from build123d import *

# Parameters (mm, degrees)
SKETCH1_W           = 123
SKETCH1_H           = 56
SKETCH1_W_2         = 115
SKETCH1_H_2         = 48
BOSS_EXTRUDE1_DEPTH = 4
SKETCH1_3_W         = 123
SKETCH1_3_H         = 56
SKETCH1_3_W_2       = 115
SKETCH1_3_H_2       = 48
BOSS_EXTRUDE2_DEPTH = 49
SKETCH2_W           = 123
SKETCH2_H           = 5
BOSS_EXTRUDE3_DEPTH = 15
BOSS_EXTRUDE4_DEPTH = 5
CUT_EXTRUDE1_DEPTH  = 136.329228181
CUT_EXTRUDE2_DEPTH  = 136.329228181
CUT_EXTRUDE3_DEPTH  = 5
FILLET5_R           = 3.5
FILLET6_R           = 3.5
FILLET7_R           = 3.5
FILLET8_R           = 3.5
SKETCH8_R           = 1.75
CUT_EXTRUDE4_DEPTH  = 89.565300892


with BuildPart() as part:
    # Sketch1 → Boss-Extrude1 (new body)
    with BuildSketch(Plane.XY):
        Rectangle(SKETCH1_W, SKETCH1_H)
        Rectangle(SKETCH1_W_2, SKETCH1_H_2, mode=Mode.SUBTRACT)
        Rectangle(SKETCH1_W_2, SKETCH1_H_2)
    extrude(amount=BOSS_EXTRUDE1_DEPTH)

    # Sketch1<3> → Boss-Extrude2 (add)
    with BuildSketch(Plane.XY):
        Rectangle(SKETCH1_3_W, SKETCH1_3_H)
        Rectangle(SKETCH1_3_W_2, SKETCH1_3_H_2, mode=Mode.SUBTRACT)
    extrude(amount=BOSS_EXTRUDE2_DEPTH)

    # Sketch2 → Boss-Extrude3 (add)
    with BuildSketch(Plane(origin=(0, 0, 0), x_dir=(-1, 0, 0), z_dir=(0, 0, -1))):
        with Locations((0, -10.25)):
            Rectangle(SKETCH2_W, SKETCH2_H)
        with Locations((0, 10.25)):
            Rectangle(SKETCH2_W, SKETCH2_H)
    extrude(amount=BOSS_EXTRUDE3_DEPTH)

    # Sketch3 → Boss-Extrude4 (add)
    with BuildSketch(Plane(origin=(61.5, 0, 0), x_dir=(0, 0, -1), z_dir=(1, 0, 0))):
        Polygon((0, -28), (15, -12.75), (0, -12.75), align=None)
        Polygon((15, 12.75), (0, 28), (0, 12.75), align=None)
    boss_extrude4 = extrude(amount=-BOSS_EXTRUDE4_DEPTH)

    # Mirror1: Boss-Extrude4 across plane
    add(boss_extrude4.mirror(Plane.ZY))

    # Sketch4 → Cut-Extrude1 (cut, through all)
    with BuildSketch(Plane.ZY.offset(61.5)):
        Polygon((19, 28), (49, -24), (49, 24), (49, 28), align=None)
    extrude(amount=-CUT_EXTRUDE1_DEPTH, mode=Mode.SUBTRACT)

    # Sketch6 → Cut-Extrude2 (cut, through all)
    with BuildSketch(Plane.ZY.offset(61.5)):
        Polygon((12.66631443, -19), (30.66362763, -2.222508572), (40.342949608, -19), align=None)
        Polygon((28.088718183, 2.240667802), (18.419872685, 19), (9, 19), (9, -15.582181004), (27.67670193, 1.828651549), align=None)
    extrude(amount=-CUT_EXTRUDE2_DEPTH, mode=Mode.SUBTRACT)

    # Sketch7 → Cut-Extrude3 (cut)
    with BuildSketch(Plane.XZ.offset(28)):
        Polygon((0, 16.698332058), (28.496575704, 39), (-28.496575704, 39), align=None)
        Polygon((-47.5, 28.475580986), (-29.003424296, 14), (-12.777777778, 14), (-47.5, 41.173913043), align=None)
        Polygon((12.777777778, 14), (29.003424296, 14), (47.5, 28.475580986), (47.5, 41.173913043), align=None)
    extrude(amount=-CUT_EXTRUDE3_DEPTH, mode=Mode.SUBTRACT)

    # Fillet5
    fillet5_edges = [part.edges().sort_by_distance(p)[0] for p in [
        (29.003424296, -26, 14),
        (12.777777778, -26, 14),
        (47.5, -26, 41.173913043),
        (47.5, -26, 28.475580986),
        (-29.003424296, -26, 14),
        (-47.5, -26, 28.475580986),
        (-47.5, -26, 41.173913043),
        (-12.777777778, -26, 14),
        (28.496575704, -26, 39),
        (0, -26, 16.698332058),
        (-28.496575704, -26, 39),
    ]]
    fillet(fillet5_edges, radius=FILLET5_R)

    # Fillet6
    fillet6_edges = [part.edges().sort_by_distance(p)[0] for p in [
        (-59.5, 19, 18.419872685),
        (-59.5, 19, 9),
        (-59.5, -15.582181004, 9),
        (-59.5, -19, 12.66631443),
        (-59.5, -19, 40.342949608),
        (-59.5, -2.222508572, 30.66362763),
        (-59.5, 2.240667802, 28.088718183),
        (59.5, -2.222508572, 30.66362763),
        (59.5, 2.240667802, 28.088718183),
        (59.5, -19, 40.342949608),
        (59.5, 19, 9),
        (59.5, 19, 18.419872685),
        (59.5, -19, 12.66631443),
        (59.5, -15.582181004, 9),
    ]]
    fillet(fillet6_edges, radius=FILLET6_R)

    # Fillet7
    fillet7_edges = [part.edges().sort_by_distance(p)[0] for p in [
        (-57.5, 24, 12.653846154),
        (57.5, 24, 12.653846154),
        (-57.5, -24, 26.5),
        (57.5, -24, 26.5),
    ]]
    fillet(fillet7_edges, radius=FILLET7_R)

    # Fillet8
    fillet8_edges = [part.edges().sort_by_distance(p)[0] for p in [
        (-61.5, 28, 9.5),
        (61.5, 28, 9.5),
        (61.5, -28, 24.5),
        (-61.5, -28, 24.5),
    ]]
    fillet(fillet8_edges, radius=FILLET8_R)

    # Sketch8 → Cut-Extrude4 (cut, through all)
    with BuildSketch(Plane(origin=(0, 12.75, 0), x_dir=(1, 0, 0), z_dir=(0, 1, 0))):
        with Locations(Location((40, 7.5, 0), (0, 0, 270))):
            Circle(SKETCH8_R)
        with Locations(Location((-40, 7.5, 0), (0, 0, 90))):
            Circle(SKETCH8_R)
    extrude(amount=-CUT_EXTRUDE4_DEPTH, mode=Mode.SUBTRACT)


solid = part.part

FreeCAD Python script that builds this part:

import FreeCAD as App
import Part
import Sketcher
Q = App.Units.Quantity


def edges_at(feature, points):
    """Names of the edges that pass closest to the given points."""
    edges = feature.Shape.Edges
    near = lambda p: min(range(len(edges)), key=lambda i: edges[i].distToShape(Part.Vertex(*p))[0])
    return sorted({f"Edge{near(p) + 1}" for p in points})


def add_polygon(sketch, points):
    """Adds a closed chain of lines whose ends are joined by coincident constraints."""
    first, n = sketch.GeometryCount, len(points)
    for a, b in zip(points, points[1:] + points[:1]):
        sketch.addGeometry(Part.LineSegment(App.Vector(*a, 0), App.Vector(*b, 0)), False)
    for i in range(n):
        sketch.addConstraint(Sketcher.Constraint("Coincident", first + i, 2, first + (i + 1) % n, 1))

doc = App.newDocument("Part")
params = doc.addObject("Spreadsheet::Sheet", "Params")
for row, (alias, value) in enumerate([
    ("sketch1_width", "123 mm"),
    ("sketch1_height", "56 mm"),
    ("pad1_length", "4 mm"),
    ("sketch2_width", "123 mm"),
    ("sketch2_width2", "115 mm"),
    ("sketch2_height", "56 mm"),
    ("sketch2_height2", "48 mm"),
    ("pad2_length", "49 mm"),
    ("sketch3_width", "123 mm"),
    ("sketch3_height", "5 mm"),
    ("pad3_length", "15 mm"),
    ("sketch4_height", "15 mm"),
    ("sketch4_width", "15.25 mm"),
    ("pad4_length", "5 mm"),
    ("sketch5_width", "52 mm"),
    ("sketch5_height", "30 mm"),
    ("pocket3_length", "5 mm"),
    ("fillet_radius", "3.5 mm"),
    ("fillet2_radius", "3.5 mm"),
    ("fillet3_radius", "3.5 mm"),
    ("fillet4_radius", "3.5 mm"),
    ("sketch8_diameter", "3.5 mm"),
], start=1):
    params.set(f"A{row}", alias)
    params.set(f"B{row}", "=" + value)
    params.setAlias(f"B{row}", alias)

body = doc.addObject("PartDesign::Body", "Body")

# Sketch on XY plane
sketch1 = doc.addObject("Sketcher::SketchObject", "Sketch")
body.addObject(sketch1)
sketch1.AttachmentSupport = (doc.XY_Plane, [""])
sketch1.MapMode = "FlatFace"
add_polygon(sketch1, [(-61.5, 28), (-61.5, -28), (61.5, -28), (61.5, 28)])  # lines 0-3
sketch1.addConstraint([
    Sketcher.Constraint("Vertical", 0),
    Sketcher.Constraint("Horizontal", 1),
    Sketcher.Constraint("Vertical", 2),
    Sketcher.Constraint("Horizontal", 3),
    Sketcher.Constraint("Symmetric", 0, 2, 2, 2, -1, 1),
    Sketcher.Constraint("DistanceX", 1, 1, 1, 2, 123.0),
    Sketcher.Constraint("DistanceY", 0, 2, 0, 1, 56.0),
])
sketch1.setExpression("Constraints[9]", "Params.sketch1_width")
sketch1.setExpression("Constraints[10]", "Params.sketch1_height")
pad1 = doc.addObject("PartDesign::Pad", "Pad")
body.addObject(pad1)
pad1.Profile = sketch1
pad1.setExpression("Length", "Params.pad1_length")

# Sketch on XY plane
sketch2 = doc.addObject("Sketcher::SketchObject", "Sketch001")
body.addObject(sketch2)
sketch2.AttachmentSupport = (doc.XY_Plane, [""])
sketch2.MapMode = "FlatFace"
add_polygon(sketch2, [(-61.5, 28), (-61.5, -28), (61.5, -28), (61.5, 28)])  # lines 0-3
add_polygon(sketch2, [(57.5, -24), (-57.5, -24), (-57.5, 24), (57.5, 24)])  # lines 4-7
sketch2.addConstraint([
    Sketcher.Constraint("Vertical", 0),
    Sketcher.Constraint("Horizontal", 1),
    Sketcher.Constraint("Vertical", 2),
    Sketcher.Constraint("Horizontal", 3),
    Sketcher.Constraint("Horizontal", 4),
    Sketcher.Constraint("Vertical", 5),
    Sketcher.Constraint("Horizontal", 6),
    Sketcher.Constraint("Vertical", 7),
    Sketcher.Constraint("Symmetric", 0, 2, 2, 2, -1, 1),
    Sketcher.Constraint("Symmetric", 4, 2, 6, 2, -1, 1),
    Sketcher.Constraint("DistanceX", 1, 1, 1, 2, 123.0),
    Sketcher.Constraint("DistanceX", 4, 2, 4, 1, 115.0),
    Sketcher.Constraint("DistanceY", 0, 2, 0, 1, 56.0),
    Sketcher.Constraint("DistanceY", 5, 1, 5, 2, 48.0),
])
sketch2.setExpression("Constraints[18]", "Params.sketch2_width")
sketch2.setExpression("Constraints[19]", "Params.sketch2_width2")
sketch2.setExpression("Constraints[20]", "Params.sketch2_height")
sketch2.setExpression("Constraints[21]", "Params.sketch2_height2")
pad2 = doc.addObject("PartDesign::Pad", "Pad001")
body.addObject(pad2)
pad2.Profile = sketch2
pad2.setExpression("Length", "Params.pad2_length")

# Sketch on XY plane
sketch3 = doc.addObject("Sketcher::SketchObject", "Sketch002")
body.addObject(sketch3)
sketch3.AttachmentSupport = (doc.XY_Plane, [""])
sketch3.MapMode = "FlatFace"
add_polygon(sketch3, [(61.5, -7.75), (61.5, -12.75), (-61.5, -12.75), (-61.5, -7.75)])  # lines 0-3
add_polygon(sketch3, [(61.5, 12.75), (61.5, 7.75), (-61.5, 7.75), (-61.5, 12.75)])  # lines 4-7
sketch3.addConstraint([
    Sketcher.Constraint("Vertical", 0),
    Sketcher.Constraint("Horizontal", 1),
    Sketcher.Constraint("Vertical", 2),
    Sketcher.Constraint("Horizontal", 3),
    Sketcher.Constraint("Vertical", 4),
    Sketcher.Constraint("Horizontal", 5),
    Sketcher.Constraint("Vertical", 6),
    Sketcher.Constraint("Horizontal", 7),
    Sketcher.Constraint("Symmetric", 2, 2, 4, 2, -1, 1),
    Sketcher.Constraint("Symmetric", 0, 2, 6, 2, -1, 1),
    Sketcher.Constraint("Vertical", 3, 2, 4, 2),
    Sketcher.Constraint("DistanceX", 1, 2, 1, 1, 123.0),
    Sketcher.Constraint("DistanceY", 0, 2, 0, 1, 5.0),
    Sketcher.Constraint("DistanceY", 3, 2, 4, 2, 15.5),
])
sketch3.setExpression("Constraints[19]", "Params.sketch3_width")
sketch3.setExpression("Constraints[20]", "Params.sketch3_height")
pad3 = doc.addObject("PartDesign::Pad", "Pad002")
body.addObject(pad3)
pad3.Profile = sketch3
pad3.setExpression("Length", "Params.pad3_length")
pad3.Reversed = True

# Sketch on YZ plane
sketch4 = doc.addObject("Sketcher::SketchObject", "Sketch003")
body.addObject(sketch4)
sketch4.AttachmentSupport = (doc.YZ_Plane, [""])
sketch4.MapMode = "FlatFace"
sketch4.AttachmentOffset = App.Placement(App.Vector(0, 0, 61.5), App.Rotation())
add_polygon(sketch4, [(-28, 0), (-12.75, -15), (-12.75, 0)])  # lines 0-2
add_polygon(sketch4, [(12.75, -15), (28, 0), (12.75, 0)])  # lines 3-5
sketch4.addConstraint([
    Sketcher.Constraint("Vertical", 1),
    Sketcher.Constraint("Horizontal", 2),
    Sketcher.Constraint("Horizontal", 4),
    Sketcher.Constraint("Vertical", 5),
    Sketcher.Constraint("Symmetric", 2, 2, 3, 2, -1, 1),
    Sketcher.Constraint("Symmetric", 1, 2, 4, 2, -2),
    Sketcher.Constraint("Horizontal", 0, 2, 5, 2),
    Sketcher.Constraint("DistanceY", 1, 1, 1, 2, 15.0),
    Sketcher.Constraint("DistanceX", 2, 2, -1, 1, 28.0),
    Sketcher.Constraint("DistanceX", 2, 2, 2, 1, 15.25),
])
sketch4.setExpression("Constraints[13]", "Params.sketch4_height")
sketch4.setExpression("Constraints[15]", "Params.sketch4_width")
pad4 = doc.addObject("PartDesign::Pad", "Pad003")
body.addObject(pad4)
pad4.Profile = sketch4
pad4.setExpression("Length", "Params.pad4_length")
pad4.Reversed = True
doc.recompute()

mirrored = doc.addObject("PartDesign::Mirrored", "Mirrored")
body.addObject(mirrored)
mirrored.Originals = [pad4]
mirrored.MirrorPlane = (doc.YZ_Plane, [""])
body.Tip = mirrored

# Sketch on YZ plane
sketch5 = doc.addObject("Sketcher::SketchObject", "Sketch004")
body.addObject(sketch5)
sketch5.AttachmentSupport = (doc.YZ_Plane, [""])
sketch5.MapMode = "FlatFace"
sketch5.AttachmentOffset = App.Placement(App.Vector(0, 0, -61.5), App.Rotation())
add_polygon(sketch5, [(28, 19), (-24, 49), (28, 49)])  # lines 0-2
sketch5.addConstraint([
    Sketcher.Constraint("Horizontal", 1),
    Sketcher.Constraint("Vertical", 2),
    Sketcher.Constraint("DistanceX", 1, 1, 1, 2, 52.0),
    Sketcher.Constraint("DistanceY", 2, 2, 2, 1, 30.0),
    Sketcher.Constraint("DistanceX", 0, 2, -1, 1, 24.0),
    Sketcher.Constraint("DistanceY", -1, 1, 0, 2, 49.0),
])
sketch5.setExpression("Constraints[5]", "Params.sketch5_width")
sketch5.setExpression("Constraints[6]", "Params.sketch5_height")
pocket1 = doc.addObject("PartDesign::Pocket", "Pocket")
body.addObject(pocket1)
pocket1.Profile = sketch5
pocket1.Type = "ThroughAll"
pocket1.Reversed = True

# Sketch on YZ plane
sketch6 = doc.addObject("Sketcher::SketchObject", "Sketch005")
body.addObject(sketch6)
sketch6.AttachmentSupport = (doc.YZ_Plane, [""])
sketch6.MapMode = "FlatFace"
sketch6.AttachmentOffset = App.Placement(App.Vector(0, 0, -61.5), App.Rotation())
add_polygon(sketch6, [(-2.222509, 30.663628), (-19, 12.666314), (-19, 40.34295)])  # lines 0-2
add_polygon(sketch6, [(2.240668, 28.088718), (19, 18.419873), (19, 9), (-15.582181, 9), (1.828652, 27.676702)])  # lines 3-7
sketch6.addConstraint([
    Sketcher.Constraint("Vertical", 1),
    Sketcher.Constraint("Vertical", 4),
    Sketcher.Constraint("Horizontal", 5),
    Sketcher.Constraint("Parallel", 2, 3),
    Sketcher.Constraint("Parallel", 0, 6),
    Sketcher.Constraint("Angle", 7, Q("45 deg")),
    Sketcher.Constraint("DistanceX", 0, 2, -1, 1, 19.0),
    Sketcher.Constraint("DistanceX", -1, 1, 3, 2, 19.0),
    Sketcher.Constraint("DistanceY", -1, 1, 4, 2, 9.0),
    Sketcher.Constraint("DistanceX", 5, 2, 5, 1, 34.582181),
    Sketcher.Constraint("DistanceY", -1, 1, 6, 2, 27.676702),
    Sketcher.Constraint("Distance", 3, 19.348431),
    Sketcher.Constraint("Distance", 7, 0.582679),
    Sketcher.Constraint("DistanceY", 1, 1, 1, 2, 27.676635),
    Sketcher.Constraint("DistanceY", 4, 2, 4, 1, 9.419873),
    Sketcher.Constraint("DistanceY", -1, 1, 1, 2, 40.34295),
])
pocket2 = doc.addObject("PartDesign::Pocket", "Pocket001")
body.addObject(pocket2)
pocket2.Profile = sketch6
pocket2.Type = "ThroughAll"
pocket2.Reversed = True

# Sketch on XZ plane
sketch7 = doc.addObject("Sketcher::SketchObject", "Sketch006")
body.addObject(sketch7)
sketch7.AttachmentSupport = (doc.XZ_Plane, [""])
sketch7.MapMode = "FlatFace"
sketch7.AttachmentOffset = App.Placement(App.Vector(0, 0, 28), App.Rotation())
add_polygon(sketch7, [(0, 16.698332), (28.496576, 39), (-28.496576, 39)])  # lines 0-2
add_polygon(sketch7, [(-47.5, 28.475581), (-29.003424, 14), (-12.777778, 14), (-47.5, 41.173913)])  # lines 3-6
add_polygon(sketch7, [(12.777778, 14), (29.003424, 14), (47.5, 28.475581), (47.5, 41.173913)])  # lines 7-10
sketch7.addConstraint([
    Sketcher.Constraint("Horizontal", 1),
    Sketcher.Constraint("Horizontal", 4),
    Sketcher.Constraint("Vertical", 6),
    Sketcher.Constraint("Horizontal", 7),
    Sketcher.Constraint("Vertical", 9),
    Sketcher.Constraint("Symmetric", 3, 2, 7, 2, -2),
    Sketcher.Constraint("Symmetric", 6, 2, 8, 2, -2),
    Sketcher.Constraint("PointOnObject", 2, 2, -2),
    Sketcher.Constraint("Parallel", 2, 3),
    Sketcher.Constraint("Parallel", 3, 5),
    Sketcher.Constraint("Parallel", 0, 8),
    Sketcher.Constraint("Parallel", 8, 10),
    Sketcher.Constraint("Horizontal", 5, 2, 9, 2),
    Sketcher.Constraint("DistanceY", -1, 1, 0, 2, 39.0),
    Sketcher.Constraint("DistanceY", -1, 1, 3, 2, 14.0),
    Sketcher.Constraint("DistanceX", 5, 2, -1, 1, 47.5),
    Sketcher.Constraint("DistanceX", 3, 2, 0, 2, 57.5),
    Sketcher.Constraint("Distance", 0, 36.185898),
    Sketcher.Constraint("DistanceX", 1, 2, 1, 1, 56.993151),
    Sketcher.Constraint("Distance", 5, 44.091431),
])
pocket3 = doc.addObject("PartDesign::Pocket", "Pocket002")
body.addObject(pocket3)
pocket3.Profile = sketch7
pocket3.setExpression("Length", "Params.pocket3_length")
doc.recompute()

fillet = doc.addObject("PartDesign::Fillet", "Fillet")
body.addObject(fillet)
fillet.Base = (pocket3, edges_at(pocket3, [
    (29.003, -26, 14),
    (12.778, -26, 14),
    (47.5, -26, 41.174),
    (47.5, -26, 28.476),
    (-29.003, -26, 14),
    (-47.5, -26, 28.476),
    (-47.5, -26, 41.174),
    (-12.778, -26, 14),
    (28.497, -26, 39),
    (0, -26, 16.698),
    (-28.497, -26, 39),
]))
fillet.setExpression("Radius", "Params.fillet_radius")
doc.recompute()

fillet2 = doc.addObject("PartDesign::Fillet", "Fillet001")
body.addObject(fillet2)
fillet2.Base = (fillet, edges_at(fillet, [
    (-59.5, 19, 18.42),
    (-59.5, 19, 9),
    (-59.5, -15.582, 9),
    (-59.5, -19, 12.666),
    (-59.5, -19, 40.343),
    (-59.5, -2.223, 30.664),
    (-59.5, 2.241, 28.089),
    (59.5, -2.223, 30.664),
    (59.5, 2.241, 28.089),
    (59.5, -19, 40.343),
    (59.5, 19, 9),
    (59.5, 19, 18.42),
    (59.5, -19, 12.666),
    (59.5, -15.582, 9),
]))
fillet2.setExpression("Radius", "Params.fillet2_radius")
doc.recompute()

fillet3 = doc.addObject("PartDesign::Fillet", "Fillet002")
body.addObject(fillet3)
fillet3.Base = (fillet2, edges_at(fillet2, [
    (-57.5, 24, 12.654),
    (57.5, 24, 12.654),
    (-57.5, -24, 26.5),
    (57.5, -24, 26.5),
]))
fillet3.setExpression("Radius", "Params.fillet3_radius")
doc.recompute()

fillet4 = doc.addObject("PartDesign::Fillet", "Fillet003")
body.addObject(fillet4)
fillet4.Base = (fillet3, edges_at(fillet3, [
    (-61.5, 28, 9.5),
    (61.5, 28, 9.5),
    (61.5, -28, 24.5),
    (-61.5, -28, 24.5),
]))
fillet4.setExpression("Radius", "Params.fillet4_radius")

# Sketch on XZ plane
sketch8 = doc.addObject("Sketcher::SketchObject", "Sketch007")
body.addObject(sketch8)
sketch8.AttachmentSupport = (doc.XZ_Plane, [""])
sketch8.MapMode = "FlatFace"
sketch8.AttachmentOffset = App.Placement(App.Vector(0, 0, -12.75), App.Rotation())
sketch8.addGeometry([
    Part.Circle(App.Vector(40, -7.5, 0), App.Vector(0, 0, 1), 1.75),
    Part.Circle(App.Vector(-40, -7.5, 0), App.Vector(0, 0, 1), 1.75),
], False)
sketch8.addConstraint([
    Sketcher.Constraint("Equal", 0, 1),
    Sketcher.Constraint("Symmetric", 0, 3, 1, 3, -2),
    Sketcher.Constraint("Diameter", 0, 3.5),
    Sketcher.Constraint("DistanceX", -1, 1, 0, 3, 40.0),
    Sketcher.Constraint("DistanceY", 0, 3, -1, 1, 7.5),
])
sketch8.setExpression("Constraints[2]", "Params.sketch8_diameter")
pocket4 = doc.addObject("PartDesign::Pocket", "Pocket003")
body.addObject(pocket4)
pocket4.Profile = sketch8
pocket4.Type = "ThroughAll"
pocket4.Reversed = True

doc.recompute()
